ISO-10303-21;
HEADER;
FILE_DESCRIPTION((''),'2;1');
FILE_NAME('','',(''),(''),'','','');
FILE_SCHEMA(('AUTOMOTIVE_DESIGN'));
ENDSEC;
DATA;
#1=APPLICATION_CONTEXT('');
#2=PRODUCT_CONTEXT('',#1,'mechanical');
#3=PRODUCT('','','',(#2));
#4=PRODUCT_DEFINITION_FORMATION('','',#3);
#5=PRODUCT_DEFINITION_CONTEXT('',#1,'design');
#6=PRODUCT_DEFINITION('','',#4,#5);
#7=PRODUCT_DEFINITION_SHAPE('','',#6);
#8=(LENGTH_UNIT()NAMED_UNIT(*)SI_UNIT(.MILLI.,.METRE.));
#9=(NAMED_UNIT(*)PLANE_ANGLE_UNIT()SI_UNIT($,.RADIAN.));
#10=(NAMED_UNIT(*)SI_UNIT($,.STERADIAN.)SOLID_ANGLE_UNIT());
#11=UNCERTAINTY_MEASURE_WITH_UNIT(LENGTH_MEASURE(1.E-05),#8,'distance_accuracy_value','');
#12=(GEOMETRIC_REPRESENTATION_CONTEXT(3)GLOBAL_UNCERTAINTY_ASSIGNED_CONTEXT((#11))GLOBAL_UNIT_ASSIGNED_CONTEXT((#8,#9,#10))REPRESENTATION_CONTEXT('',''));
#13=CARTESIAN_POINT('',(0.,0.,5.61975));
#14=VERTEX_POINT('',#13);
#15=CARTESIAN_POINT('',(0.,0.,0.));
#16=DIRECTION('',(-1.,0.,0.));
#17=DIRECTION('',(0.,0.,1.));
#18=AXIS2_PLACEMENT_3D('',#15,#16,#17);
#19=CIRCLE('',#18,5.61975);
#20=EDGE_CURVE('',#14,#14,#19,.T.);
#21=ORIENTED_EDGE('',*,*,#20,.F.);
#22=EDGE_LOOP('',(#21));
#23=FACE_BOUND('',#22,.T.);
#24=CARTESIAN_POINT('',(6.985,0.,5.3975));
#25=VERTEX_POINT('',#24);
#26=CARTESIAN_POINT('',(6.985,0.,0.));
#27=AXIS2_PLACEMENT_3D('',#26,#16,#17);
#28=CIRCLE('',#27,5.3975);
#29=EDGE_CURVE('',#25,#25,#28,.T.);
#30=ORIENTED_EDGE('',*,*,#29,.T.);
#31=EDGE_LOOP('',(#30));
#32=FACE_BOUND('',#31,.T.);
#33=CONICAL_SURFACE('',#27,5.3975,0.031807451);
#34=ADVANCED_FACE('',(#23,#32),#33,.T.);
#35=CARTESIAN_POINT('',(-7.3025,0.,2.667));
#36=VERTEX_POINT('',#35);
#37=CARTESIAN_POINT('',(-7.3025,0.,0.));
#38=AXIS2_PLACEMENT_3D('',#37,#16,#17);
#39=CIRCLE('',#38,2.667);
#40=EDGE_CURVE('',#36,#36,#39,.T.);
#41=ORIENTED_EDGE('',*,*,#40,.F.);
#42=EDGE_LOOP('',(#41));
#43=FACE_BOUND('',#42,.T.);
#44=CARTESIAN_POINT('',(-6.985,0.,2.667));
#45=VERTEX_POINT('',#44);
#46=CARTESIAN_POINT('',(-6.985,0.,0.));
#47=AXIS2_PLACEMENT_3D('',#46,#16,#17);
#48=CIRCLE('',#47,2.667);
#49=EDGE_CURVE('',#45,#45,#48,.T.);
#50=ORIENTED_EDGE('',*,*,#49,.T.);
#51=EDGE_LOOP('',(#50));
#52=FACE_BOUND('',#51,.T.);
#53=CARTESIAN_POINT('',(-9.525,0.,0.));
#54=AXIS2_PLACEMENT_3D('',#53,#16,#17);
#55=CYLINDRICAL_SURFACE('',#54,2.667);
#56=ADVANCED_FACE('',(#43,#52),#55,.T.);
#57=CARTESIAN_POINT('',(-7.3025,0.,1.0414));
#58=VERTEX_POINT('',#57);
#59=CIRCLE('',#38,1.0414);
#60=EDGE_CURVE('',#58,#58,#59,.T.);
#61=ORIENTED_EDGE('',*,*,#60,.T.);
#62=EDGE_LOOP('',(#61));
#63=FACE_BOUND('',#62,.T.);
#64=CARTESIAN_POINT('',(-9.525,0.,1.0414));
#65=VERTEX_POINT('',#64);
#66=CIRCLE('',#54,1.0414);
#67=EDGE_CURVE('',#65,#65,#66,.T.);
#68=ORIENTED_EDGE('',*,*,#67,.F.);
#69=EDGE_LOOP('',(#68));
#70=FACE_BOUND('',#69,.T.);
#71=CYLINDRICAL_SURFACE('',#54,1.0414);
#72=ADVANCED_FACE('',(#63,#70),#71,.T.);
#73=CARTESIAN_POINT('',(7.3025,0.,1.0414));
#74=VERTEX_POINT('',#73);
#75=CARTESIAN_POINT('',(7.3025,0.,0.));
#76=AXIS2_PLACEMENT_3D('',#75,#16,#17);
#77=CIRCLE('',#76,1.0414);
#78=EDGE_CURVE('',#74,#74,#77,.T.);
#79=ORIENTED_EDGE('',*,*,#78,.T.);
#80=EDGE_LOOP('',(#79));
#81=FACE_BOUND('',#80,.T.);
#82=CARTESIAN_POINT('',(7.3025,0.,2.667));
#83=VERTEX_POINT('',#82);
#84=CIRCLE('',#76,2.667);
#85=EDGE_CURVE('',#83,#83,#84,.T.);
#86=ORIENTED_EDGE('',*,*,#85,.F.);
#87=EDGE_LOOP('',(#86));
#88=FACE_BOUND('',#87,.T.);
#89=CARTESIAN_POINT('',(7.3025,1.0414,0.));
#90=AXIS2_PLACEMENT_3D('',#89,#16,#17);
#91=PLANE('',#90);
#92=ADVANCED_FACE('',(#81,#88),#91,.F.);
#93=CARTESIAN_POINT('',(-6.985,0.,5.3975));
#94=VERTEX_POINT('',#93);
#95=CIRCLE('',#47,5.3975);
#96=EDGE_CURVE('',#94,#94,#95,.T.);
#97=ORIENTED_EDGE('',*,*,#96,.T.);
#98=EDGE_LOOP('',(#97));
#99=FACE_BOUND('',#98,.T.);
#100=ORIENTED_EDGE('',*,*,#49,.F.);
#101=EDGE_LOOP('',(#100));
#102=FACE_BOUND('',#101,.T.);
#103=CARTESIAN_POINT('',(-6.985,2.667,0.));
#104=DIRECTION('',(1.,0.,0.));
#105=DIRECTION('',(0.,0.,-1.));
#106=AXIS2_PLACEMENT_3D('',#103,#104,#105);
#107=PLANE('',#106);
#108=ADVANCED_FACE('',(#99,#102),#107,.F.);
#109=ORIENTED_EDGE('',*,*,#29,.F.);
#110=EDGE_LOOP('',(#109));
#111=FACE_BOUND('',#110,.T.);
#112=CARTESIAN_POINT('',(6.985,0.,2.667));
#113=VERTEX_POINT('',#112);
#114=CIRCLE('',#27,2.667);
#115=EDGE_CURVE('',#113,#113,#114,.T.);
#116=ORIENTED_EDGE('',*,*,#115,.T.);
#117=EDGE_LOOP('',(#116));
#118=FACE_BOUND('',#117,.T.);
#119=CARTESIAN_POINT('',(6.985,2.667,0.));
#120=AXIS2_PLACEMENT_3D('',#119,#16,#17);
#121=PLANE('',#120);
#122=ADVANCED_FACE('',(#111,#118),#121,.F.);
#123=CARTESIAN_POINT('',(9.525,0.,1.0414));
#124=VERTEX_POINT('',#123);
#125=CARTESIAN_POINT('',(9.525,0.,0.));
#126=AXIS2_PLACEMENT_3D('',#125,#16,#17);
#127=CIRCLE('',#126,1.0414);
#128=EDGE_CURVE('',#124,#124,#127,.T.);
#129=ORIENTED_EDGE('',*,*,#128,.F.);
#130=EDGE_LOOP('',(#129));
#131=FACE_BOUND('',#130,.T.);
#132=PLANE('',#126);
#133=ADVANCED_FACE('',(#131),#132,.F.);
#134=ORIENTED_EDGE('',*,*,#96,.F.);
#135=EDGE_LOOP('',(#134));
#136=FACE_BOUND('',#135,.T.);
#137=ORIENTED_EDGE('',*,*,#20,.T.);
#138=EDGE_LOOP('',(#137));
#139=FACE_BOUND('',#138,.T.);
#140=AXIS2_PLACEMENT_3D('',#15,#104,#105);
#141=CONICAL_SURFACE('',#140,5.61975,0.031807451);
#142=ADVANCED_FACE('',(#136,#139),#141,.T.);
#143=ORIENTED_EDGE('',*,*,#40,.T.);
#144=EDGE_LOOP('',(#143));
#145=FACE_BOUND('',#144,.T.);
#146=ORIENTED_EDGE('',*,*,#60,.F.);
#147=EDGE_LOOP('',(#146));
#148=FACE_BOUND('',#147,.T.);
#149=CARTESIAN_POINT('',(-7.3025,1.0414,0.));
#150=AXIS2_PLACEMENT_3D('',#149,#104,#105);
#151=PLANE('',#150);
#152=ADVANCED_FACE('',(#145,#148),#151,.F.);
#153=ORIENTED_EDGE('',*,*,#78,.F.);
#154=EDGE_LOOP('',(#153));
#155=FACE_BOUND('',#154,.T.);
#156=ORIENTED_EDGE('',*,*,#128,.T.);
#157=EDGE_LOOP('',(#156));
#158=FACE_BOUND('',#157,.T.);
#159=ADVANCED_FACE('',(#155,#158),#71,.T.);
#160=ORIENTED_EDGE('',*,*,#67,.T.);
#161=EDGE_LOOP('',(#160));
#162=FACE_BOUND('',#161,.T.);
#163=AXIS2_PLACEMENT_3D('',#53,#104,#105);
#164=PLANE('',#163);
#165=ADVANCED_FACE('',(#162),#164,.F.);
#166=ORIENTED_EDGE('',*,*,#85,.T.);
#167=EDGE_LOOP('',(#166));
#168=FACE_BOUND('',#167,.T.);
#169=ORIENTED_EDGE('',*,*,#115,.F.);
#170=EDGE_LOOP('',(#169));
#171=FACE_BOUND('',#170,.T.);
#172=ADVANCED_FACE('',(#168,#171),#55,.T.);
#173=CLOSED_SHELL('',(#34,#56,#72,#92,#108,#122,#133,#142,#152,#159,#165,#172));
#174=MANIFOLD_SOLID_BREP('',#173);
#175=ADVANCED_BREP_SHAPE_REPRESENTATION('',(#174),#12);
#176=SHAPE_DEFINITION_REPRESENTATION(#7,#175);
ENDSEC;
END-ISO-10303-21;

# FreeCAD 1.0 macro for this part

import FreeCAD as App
import Part
import Sketcher

V = App.Vector
Q = App.Units.Quantity

doc = App.newDocument("Part")
params = doc.addObject("Spreadsheet::Sheet", "Params")
for row, (alias, value) in enumerate([
    ("sketch1_width", "0.75 in"),
    ("sketch1_height", "0.041 in"),
    ("sketch1_height2", "0.064 in"),
    ("revolution_angle", "360 deg"),
], start=1):
    params.set(f"A{row}", alias)
    params.set(f"B{row}", "=" + value)
    params.setAlias(f"B{row}", alias)

body = doc.addObject("PartDesign::Body", "Body")

sketch1 = body.newObject("Sketcher::SketchObject", "Sketch")
sketch1.AttachmentSupport = (doc.getObject("XY_Plane"), [""])
sketch1.MapMode = "FlatFace"
sketch1.addGeometry([
    Part.LineSegment(V(-9.525, 1.0414, 0), V(-9.525, 0, 0)),
    Part.LineSegment(V(-9.525, 0, 0), V(9.525, 0, 0)),
    Part.LineSegment(V(9.525, 0, 0), V(9.525, 1.0414, 0)),
    Part.LineSegment(V(9.525, 1.0414, 0), V(7.3025, 1.0414, 0)),
    Part.LineSegment(V(7.3025, 1.0414, 0), V(7.3025, 2.667, 0)),
    Part.LineSegment(V(7.3025, 2.667, 0), V(6.985, 2.667, 0)),
    Part.LineSegment(V(6.985, 2.667, 0), V(6.985, 5.3975, 0)),
    Part.LineSegment(V(6.985, 5.3975, 0), V(0, 5.61975, 0)),
    Part.LineSegment(V(0, 5.61975, 0), V(-6.985, 5.3975, 0)),
    Part.LineSegment(V(-6.985, 5.3975, 0), V(-6.985, 2.667, 0)),
    Part.LineSegment(V(-6.985, 2.667, 0), V(-7.3025, 2.667, 0)),
    Part.LineSegment(V(-7.3025, 2.667, 0), V(-7.3025, 1.0414, 0)),
    Part.LineSegment(V(-7.3025, 1.0414, 0), V(-9.525, 1.0414, 0)),
], False)
sketch1.addConstraint([
    Sketcher.Constraint("Coincident", 0, 2, 1, 1),
    Sketcher.Constraint("Coincident", 1, 2, 2, 1),
    Sketcher.Constraint("Coincident", 2, 2, 3, 1),
    Sketcher.Constraint("Coincident", 3, 2, 4, 1),
    Sketcher.Constraint("Coincident", 4, 2, 5, 1),
    Sketcher.Constraint("Coincident", 5, 2, 6, 1),
    Sketcher.Constraint("Coincident", 6, 2, 7, 1),
    Sketcher.Constraint("Coincident", 7, 2, 8, 1),
    Sketcher.Constraint("Coincident", 8, 2, 9, 1),
    Sketcher.Constraint("Coincident", 9, 2, 10, 1),
    Sketcher.Constraint("Coincident", 10, 2, 11, 1),
    Sketcher.Constraint("Coincident", 11, 2, 12, 1),
    Sketcher.Constraint("Coincident", 12, 2, 0, 1),
    Sketcher.Constraint("Vertical", 0),
    Sketcher.Constraint("Horizontal", 1),
    Sketcher.Constraint("Vertical", 2),
    Sketcher.Constraint("Horizontal", 3),
    Sketcher.Constraint("Vertical", 4),
    Sketcher.Constraint("Horizontal", 5),
    Sketcher.Constraint("Vertical", 6),
    Sketcher.Constraint("Vertical", 9),
    Sketcher.Constraint("Horizontal", 10),
    Sketcher.Constraint("Vertical", 11),
    Sketcher.Constraint("Horizontal", 12),
    Sketcher.Constraint("Symmetric", 0, 2, 1, 2, -1, 1),
    Sketcher.Constraint("Symmetric", 6, 2, 8, 2, -2),
    Sketcher.Constraint("Symmetric", 4, 2, 10, 2, -2),
    Sketcher.Constraint("PointOnObject", 7, 2, -2),
    Sketcher.Constraint("Horizontal", 3, 2, 11, 2),
    Sketcher.Constraint("DistanceX", 1, 1, 1, 2, Q("0.75 in")),
    Sketcher.Constraint("DistanceX", 5, 2, 2, 2, Q("0.1 in")),
    Sketcher.Constraint("DistanceY", 0, 2, 0, 1, Q("0.041 in")),
    Sketcher.Constraint("DistanceY", 4, 1, 4, 2, Q("0.064 in")),
    Sketcher.Constraint("DistanceX", 3, 2, 3, 1, Q("0.0875 in")),
    Sketcher.Constraint("DistanceY", 6, 1, 6, 2, Q("0.1075 in")),
    Sketcher.Constraint("DistanceY", -1, 1, 7, 2, 5.61975),
])
sketch1.setExpression("Constraints[29]", "Params.sketch1_width")
sketch1.setExpression("Constraints[31]", "Params.sketch1_height")
sketch1.setExpression("Constraints[32]", "Params.sketch1_height2")
revolution = body.newObject("PartDesign::Revolution", "Revolution")
revolution.Profile = sketch1
revolution.ReferenceAxis = (sketch1, ["H_Axis"])
revolution.setExpression("Angle", "Params.revolution_angle")

doc.recompute()
